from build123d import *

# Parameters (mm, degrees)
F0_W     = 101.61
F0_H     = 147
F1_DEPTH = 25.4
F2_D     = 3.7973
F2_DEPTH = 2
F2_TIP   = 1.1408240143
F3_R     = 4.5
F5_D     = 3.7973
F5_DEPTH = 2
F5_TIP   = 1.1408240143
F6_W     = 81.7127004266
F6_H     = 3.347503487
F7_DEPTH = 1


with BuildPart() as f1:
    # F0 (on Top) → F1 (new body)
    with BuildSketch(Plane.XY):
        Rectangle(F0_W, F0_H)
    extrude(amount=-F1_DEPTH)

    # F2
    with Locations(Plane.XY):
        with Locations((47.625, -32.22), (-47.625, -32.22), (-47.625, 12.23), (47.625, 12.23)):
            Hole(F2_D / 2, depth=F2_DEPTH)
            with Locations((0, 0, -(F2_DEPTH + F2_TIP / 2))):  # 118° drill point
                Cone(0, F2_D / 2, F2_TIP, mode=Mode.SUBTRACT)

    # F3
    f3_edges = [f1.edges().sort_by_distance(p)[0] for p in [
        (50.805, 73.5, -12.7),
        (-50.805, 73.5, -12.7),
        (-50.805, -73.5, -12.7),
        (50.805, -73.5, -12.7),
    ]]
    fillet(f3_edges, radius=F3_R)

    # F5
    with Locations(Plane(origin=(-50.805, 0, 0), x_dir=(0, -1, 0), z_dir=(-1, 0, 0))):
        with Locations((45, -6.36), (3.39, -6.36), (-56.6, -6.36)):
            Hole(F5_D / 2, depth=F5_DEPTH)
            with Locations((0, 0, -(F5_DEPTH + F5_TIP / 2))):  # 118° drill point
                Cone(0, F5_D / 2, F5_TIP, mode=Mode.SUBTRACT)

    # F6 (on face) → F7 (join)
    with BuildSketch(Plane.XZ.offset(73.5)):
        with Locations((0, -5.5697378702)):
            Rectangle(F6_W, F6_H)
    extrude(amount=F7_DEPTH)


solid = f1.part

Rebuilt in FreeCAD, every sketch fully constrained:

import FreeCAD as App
import Part
import Sketcher

V = App.Vector


def edges_at(feature, points):
    """Names of the edges that pass closest to the given points."""
    edges = feature.Shape.Edges
    near = lambda p: min(range(len(edges)), key=lambda i: edges[i].distToShape(Part.Vertex(*p))[0])
    return sorted({f"Edge{near(p) + 1}" for p in points})

doc = App.newDocument("Part")
params = doc.addObject("Spreadsheet::Sheet", "Params")
for row, (alias, value) in enumerate([
    ("sketch1_height", "147 mm"),
    ("sketch1_width", "101.61 mm"),
    ("pad1_length", "25.4 mm"),
    ("hole_diameter", "3.7973 mm"),
    ("hole_depth", "2 mm"),
    ("fillet_radius", "4.5 mm"),
    ("hole2_diameter", "3.7973 mm"),
    ("hole2_depth", "2 mm"),
    ("pad2_length", "1 mm"),
], start=1):
    params.set(f"A{row}", alias)
    params.set(f"B{row}", "=" + value)
    params.setAlias(f"B{row}", alias)

body = doc.addObject("PartDesign::Body", "Body")

sketch1 = doc.addObject("Sketcher::SketchObject", "Sketch")
body.addObject(sketch1)
sketch1.AttachmentSupport = (doc.XY_Plane, [""])
sketch1.MapMode = "FlatFace"
sketch1.addGeometry([
    Part.LineSegment(V(-51, 74, 0), V(-51, -74, 0)),
    Part.LineSegment(V(-51, -74, 0), V(51, -74, 0)),
    Part.LineSegment(V(51, -74, 0), V(51, 74, 0)),
    Part.LineSegment(V(51, 74, 0), V(-51, 74, 0)),
], False)
sketch1.addConstraint([
    Sketcher.Constraint("Coincident", 0, 2, 1, 1),
    Sketcher.Constraint("Coincident", 1, 2, 2, 1),
    Sketcher.Constraint("Coincident", 2, 2, 3, 1),
    Sketcher.Constraint("Coincident", 3, 2, 0, 1),
    Sketcher.Constraint("Vertical", 0),
    Sketcher.Constraint("Horizontal", 1),
    Sketcher.Constraint("Vertical", 2),
    Sketcher.Constraint("Horizontal", 3),
    Sketcher.Constraint("Symmetric", 0, 2, 2, 2, -1, 1),
    Sketcher.Constraint("DistanceY", 0, 2, 0, 1, 147.0),
    Sketcher.Constraint("DistanceX", 1, 1, 1, 2, 101.61),
])
sketch1.setExpression("Constraints[9]", "Params.sketch1_height")
sketch1.setExpression("Constraints[10]", "Params.sketch1_width")
pad1 = doc.addObject("PartDesign::Pad", "Pad")
body.addObject(pad1)
pad1.Profile = sketch1
pad1.setExpression("Length", "Params.pad1_length")
pad1.Reversed = True

sketch2 = doc.addObject("Sketcher::SketchObject", "Sketch001")
body.addObject(sketch2)
sketch2.AttachmentSupport = (doc.XY_Plane, [""])
sketch2.MapMode = "FlatFace"
sketch2.addGeometry([
    Part.Circle(V(47.6, -32.2, 0), V(0, 0, 1), 1.9),
    Part.Circle(V(-47.6, -32.2, 0), V(0, 0, 1), 1.9),
    Part.Circle(V(-47.6, 12.2, 0), V(0, 0, 1), 1.9),
    Part.Circle(V(47.6, 12.2, 0), V(0, 0, 1), 1.9),
], False)
sketch2.addConstraint([
    Sketcher.Constraint("Equal", 0, 1),
    Sketcher.Constraint("Equal", 1, 2),
    Sketcher.Constraint("Equal", 2, 3),
    Sketcher.Constraint("Symmetric", 0, 3, 1, 3, -2),
    Sketcher.Constraint("Symmetric", 2, 3, 3, 3, -2),
    Sketcher.Constraint("Vertical", 1, 3, 2, 3),
    Sketcher.Constraint("Diameter", 0, 3.7973),
    Sketcher.Constraint("DistanceY", 0, 3, -1, 1, 32.22),
    Sketcher.Constraint("DistanceY", -1, 1, 2, 3, 12.23),
    Sketcher.Constraint("DistanceX", 1, 3, 0, 3, 95.25),
])
doc.recompute()
hole = doc.addObject("PartDesign::Hole", "Hole")
body.addObject(hole)
hole.Profile = sketch2
hole.ThreadType = "None"
hole.setExpression("Diameter", "Params.hole_diameter")
hole.DepthType = "Dimension"
hole.setExpression("Depth", "Params.hole_depth")
hole.DrillPoint = "Angled"
hole.DrillPointAngle = 118
doc.recompute()

fillet = doc.addObject("PartDesign::Fillet", "Fillet")
body.addObject(fillet)
fillet.Base = (hole, edges_at(hole, [
    (50.805, 73.5, -12.7),
    (-50.805, 73.5, -12.7),
    (-50.805, -73.5, -12.7),
    (50.805, -73.5, -12.7),
]))
fillet.setExpression("Radius", "Params.fillet_radius")

sketch3 = doc.addObject("Sketcher::SketchObject", "Sketch002")
body.addObject(sketch3)
sketch3.AttachmentSupport = (doc.YZ_Plane, [""])
sketch3.MapMode = "FlatFace"
sketch3.AttachmentOffset = App.Placement(V(0, 0, -50.805), App.Rotation())
sketch3.addGeometry([
    Part.Circle(V(-45, -6.4, 0), V(0, 0, 1), 1.9),
    Part.Circle(V(-3.4, -6.4, 0), V(0, 0, 1), 1.9),
    Part.Circle(V(56.6, -6.4, 0), V(0, 0, 1), 1.9),
], False)
sketch3.addConstraint([
    Sketcher.Constraint("Equal", 0, 1),
    Sketcher.Constraint("Equal", 1, 2),
    Sketcher.Constraint("Horizontal", 0, 3, 1, 3),
    Sketcher.Constraint("Horizontal", 1, 3, 2, 3),
    Sketcher.Constraint("DistanceX", 0, 3, -1, 1, 45.0),
    Sketcher.Constraint("Diameter", 0, 3.7973),
    Sketcher.Constraint("DistanceX", -1, 1, 2, 3, 56.6),
    Sketcher.Constraint("DistanceY", 0, 3, -1, 1, 6.36),
    Sketcher.Constraint("DistanceX", 1, 3, -1, 1, 3.39),
])
doc.recompute()
hole2 = doc.addObject("PartDesign::Hole", "Hole001")
body.addObject(hole2)
hole2.Profile = sketch3
hole2.ThreadType = "None"
hole2.setExpression("Diameter", "Params.hole2_diameter")
hole2.DepthType = "Dimension"
hole2.setExpression("Depth", "Params.hole2_depth")
hole2.DrillPoint = "Angled"
hole2.DrillPointAngle = 118
hole2.Reversed = True

sketch4 = doc.addObject("Sketcher::SketchObject", "Sketch003")
body.addObject(sketch4)
sketch4.AttachmentSupport = (doc.XZ_Plane, [""])
sketch4.MapMode = "FlatFace"
sketch4.AttachmentOffset = App.Placement(V(0, 0, 73.5), App.Rotation())
sketch4.addGeometry([
    Part.LineSegment(V(-40.9, -3.9, 0), V(-40.9, -7.2, 0)),
    Part.LineSegment(V(-40.9, -7.2, 0), V(40.9, -7.2, 0)),
    Part.LineSegment(V(40.9, -7.2, 0), V(40.9, -3.9, 0)),
    Part.LineSegment(V(40.9, -3.9, 0), V(-40.9, -3.9, 0)),
], False)
sketch4.addConstraint([
    Sketcher.Constraint("Coincident", 0, 2, 1, 1),
    Sketcher.Constraint("Coincident", 1, 2, 2, 1),
    Sketcher.Constraint("Coincident", 2, 2, 3, 1),
    Sketcher.Constraint("Coincident", 3, 2, 0, 1),
    Sketcher.Constraint("Vertical", 0),
    Sketcher.Constraint("Horizontal", 1),
    Sketcher.Constraint("Vertical", 2),
    Sketcher.Constraint("Horizontal", 3),
    Sketcher.Constraint("DistanceX", 1, 1, 1, 2, 81.7127),
    Sketcher.Constraint("DistanceY", 0, 2, 0, 1, 3.347503),
    Sketcher.Constraint("DistanceX", 0, 2, -1, 1, 40.85635),
    Sketcher.Constraint("DistanceY", 0, 2, -1, 1, 7.24349),
])
pad2 = doc.addObject("PartDesign::Pad", "Pad001")
body.addObject(pad2)
pad2.Profile = sketch4
pad2.setExpression("Length", "Params.pad2_length")

doc.recompute()
